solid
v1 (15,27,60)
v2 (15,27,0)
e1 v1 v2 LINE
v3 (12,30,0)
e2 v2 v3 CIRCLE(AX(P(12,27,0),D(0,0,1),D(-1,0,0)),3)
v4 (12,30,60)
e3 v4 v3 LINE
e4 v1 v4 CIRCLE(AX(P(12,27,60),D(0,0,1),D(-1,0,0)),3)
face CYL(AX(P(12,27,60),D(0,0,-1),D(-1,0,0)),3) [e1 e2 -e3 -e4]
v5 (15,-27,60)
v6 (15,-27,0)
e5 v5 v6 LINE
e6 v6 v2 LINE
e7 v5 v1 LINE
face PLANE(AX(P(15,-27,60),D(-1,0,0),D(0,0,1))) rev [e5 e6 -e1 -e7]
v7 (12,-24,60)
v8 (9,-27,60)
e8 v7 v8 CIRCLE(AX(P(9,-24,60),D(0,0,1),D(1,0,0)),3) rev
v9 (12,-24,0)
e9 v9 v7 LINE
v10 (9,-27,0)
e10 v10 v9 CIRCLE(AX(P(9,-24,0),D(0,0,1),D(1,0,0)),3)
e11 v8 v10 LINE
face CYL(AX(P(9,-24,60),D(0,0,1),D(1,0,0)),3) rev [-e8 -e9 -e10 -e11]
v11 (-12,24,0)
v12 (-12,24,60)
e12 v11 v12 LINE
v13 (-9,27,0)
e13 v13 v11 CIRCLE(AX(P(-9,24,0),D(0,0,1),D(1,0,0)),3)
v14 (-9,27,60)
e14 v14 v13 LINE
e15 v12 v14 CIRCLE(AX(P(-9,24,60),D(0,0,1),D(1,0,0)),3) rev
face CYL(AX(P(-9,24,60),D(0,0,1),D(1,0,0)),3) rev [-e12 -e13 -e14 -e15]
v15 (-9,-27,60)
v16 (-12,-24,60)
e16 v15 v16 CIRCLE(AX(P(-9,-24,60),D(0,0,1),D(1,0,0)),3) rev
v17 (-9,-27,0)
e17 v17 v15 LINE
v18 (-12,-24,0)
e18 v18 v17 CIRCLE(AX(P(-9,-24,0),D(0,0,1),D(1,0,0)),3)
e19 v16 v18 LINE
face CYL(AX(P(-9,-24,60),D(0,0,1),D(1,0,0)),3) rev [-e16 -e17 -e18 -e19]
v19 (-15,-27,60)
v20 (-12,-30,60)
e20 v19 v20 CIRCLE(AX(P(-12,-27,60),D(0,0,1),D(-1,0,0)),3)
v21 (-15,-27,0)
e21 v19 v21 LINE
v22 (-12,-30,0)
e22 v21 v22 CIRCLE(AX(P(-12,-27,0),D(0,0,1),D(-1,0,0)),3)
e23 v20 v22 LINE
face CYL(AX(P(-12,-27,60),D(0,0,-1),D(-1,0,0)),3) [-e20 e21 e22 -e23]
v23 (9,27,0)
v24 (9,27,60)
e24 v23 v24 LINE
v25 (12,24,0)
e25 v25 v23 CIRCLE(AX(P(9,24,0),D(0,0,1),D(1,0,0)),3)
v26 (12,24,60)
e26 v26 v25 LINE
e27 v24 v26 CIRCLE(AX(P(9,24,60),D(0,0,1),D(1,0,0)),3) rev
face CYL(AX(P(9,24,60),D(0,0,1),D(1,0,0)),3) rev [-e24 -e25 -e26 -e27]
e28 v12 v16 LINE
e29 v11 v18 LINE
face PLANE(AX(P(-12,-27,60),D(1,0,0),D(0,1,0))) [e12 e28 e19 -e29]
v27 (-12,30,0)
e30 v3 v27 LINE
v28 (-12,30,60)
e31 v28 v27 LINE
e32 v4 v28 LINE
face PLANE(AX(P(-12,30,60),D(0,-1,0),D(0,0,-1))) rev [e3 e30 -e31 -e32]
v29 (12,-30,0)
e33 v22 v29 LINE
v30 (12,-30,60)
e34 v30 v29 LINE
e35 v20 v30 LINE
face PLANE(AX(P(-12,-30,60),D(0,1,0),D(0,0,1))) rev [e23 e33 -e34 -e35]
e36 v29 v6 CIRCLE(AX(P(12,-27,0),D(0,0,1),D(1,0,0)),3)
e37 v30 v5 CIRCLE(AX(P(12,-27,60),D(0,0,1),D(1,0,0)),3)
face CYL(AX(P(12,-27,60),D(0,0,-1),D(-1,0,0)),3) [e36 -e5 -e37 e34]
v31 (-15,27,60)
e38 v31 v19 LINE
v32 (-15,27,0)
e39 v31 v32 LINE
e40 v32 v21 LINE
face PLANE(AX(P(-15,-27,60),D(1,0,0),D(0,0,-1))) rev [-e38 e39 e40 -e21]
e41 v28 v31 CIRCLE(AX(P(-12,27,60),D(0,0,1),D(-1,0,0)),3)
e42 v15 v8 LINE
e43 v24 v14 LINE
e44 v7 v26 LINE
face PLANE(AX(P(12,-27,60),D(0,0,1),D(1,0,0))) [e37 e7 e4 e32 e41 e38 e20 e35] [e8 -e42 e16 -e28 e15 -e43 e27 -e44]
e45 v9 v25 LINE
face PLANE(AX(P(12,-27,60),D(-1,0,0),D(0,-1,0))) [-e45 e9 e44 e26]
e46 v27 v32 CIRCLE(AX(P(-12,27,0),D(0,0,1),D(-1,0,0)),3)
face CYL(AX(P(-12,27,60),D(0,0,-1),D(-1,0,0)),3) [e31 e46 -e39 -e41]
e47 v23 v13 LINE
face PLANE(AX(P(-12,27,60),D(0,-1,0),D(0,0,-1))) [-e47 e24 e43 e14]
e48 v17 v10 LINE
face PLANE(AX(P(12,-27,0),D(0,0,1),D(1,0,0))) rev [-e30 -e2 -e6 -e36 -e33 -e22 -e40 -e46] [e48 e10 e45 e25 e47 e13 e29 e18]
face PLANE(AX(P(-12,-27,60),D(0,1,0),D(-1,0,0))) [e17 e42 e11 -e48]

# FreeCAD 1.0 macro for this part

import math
import FreeCAD as App
import Part
import Sketcher

V = App.Vector
Q = App.Units.Quantity


def edges_at(feature, points):
    """Names of the edges that pass closest to the given points."""
    edges = feature.Shape.Edges
    near = lambda p: min(range(len(edges)), key=lambda i: edges[i].distToShape(Part.Vertex(*p))[0])
    return sorted({f"Edge{near(p) + 1}" for p in points})


def add_polygon(sketch, points):
    """Adds a closed chain of lines whose ends are joined by coincident constraints."""
    first, n = sketch.GeometryCount, len(points)
    for a, b in zip(points, points[1:] + points[:1]):
        sketch.addGeometry(Part.LineSegment(App.Vector(*a, 0), App.Vector(*b, 0)), False)
    for i in range(n):
        sketch.addConstraint(Sketcher.Constraint("Coincident", first + i, 2, first + (i + 1) % n, 1))

doc = App.newDocument("Part")
params = doc.addObject("Spreadsheet::Sheet", "Params")
for row, (alias, value) in enumerate([
    ("sketch1_radius", "3 mm"),
    ("sketch1_width", "24 mm"),
    ("sketch1_height", "54 mm"),
    ("pad1_length", "60 mm"),
    ("fillet_radius", "3 mm"),
], start=1):
    params.set(f"A{row}", alias)
    params.set(f"B{row}", "=" + value)
    params.setAlias(f"B{row}", alias)

body = doc.addObject("PartDesign::Body", "Body")

# Sketch on XY plane
sketch1 = doc.addObject("Sketcher::SketchObject", "Sketch")
body.addObject(sketch1)
sketch1.AttachmentSupport = (doc.XY_Plane, [""])
sketch1.MapMode = "FlatFace"
sketch1.addGeometry(Part.LineSegment(V(-12, -30, 0), V(12, -30, 0)), False)  # 0
sketch1.addGeometry(Part.ArcOfCircle(Part.Circle(V(12, -27, 0), V(0, 0, 1), 3), math.radians(-90), math.radians(0)), False)  # 1
sketch1.addGeometry(Part.LineSegment(V(15, -27, 0), V(15, 27, 0)), False)  # 2
sketch1.addGeometry(Part.ArcOfCircle(Part.Circle(V(12, 27, 0), V(0, 0, 1), 3), math.radians(0), math.radians(90)), False)  # 3
sketch1.addGeometry(Part.LineSegment(V(12, 30, 0), V(-12, 30, 0)), False)  # 4
sketch1.addGeometry(Part.ArcOfCircle(Part.Circle(V(-12, 27, 0), V(0, 0, 1), 3), math.radians(90), math.radians(180)), False)  # 5
sketch1.addGeometry(Part.LineSegment(V(-15, 27, 0), V(-15, -27, 0)), False)  # 6
sketch1.addGeometry(Part.ArcOfCircle(Part.Circle(V(-12, -27, 0), V(0, 0, 1), 3), math.radians(180), math.radians(270)), False)  # 7
add_polygon(sketch1, [(12, -27), (-12, -27), (-12, 27), (12, 27)])  # lines 8-11
sketch1.addConstraint(Sketcher.Constraint("Tangent", 0, 2, 1, 1))
sketch1.addConstraint(Sketcher.Constraint("Tangent", 1, 2, 2, 1))
sketch1.addConstraint(Sketcher.Constraint("Tangent", 2, 2, 3, 1))
sketch1.addConstraint(Sketcher.Constraint("Tangent", 3, 2, 4, 1))
sketch1.addConstraint(Sketcher.Constraint("Tangent", 4, 2, 5, 1))
sketch1.addConstraint(Sketcher.Constraint("Tangent", 5, 2, 6, 1))
sketch1.addConstraint(Sketcher.Constraint("Tangent", 6, 2, 7, 1))
sketch1.addConstraint(Sketcher.Constraint("Tangent", 7, 2, 0, 1))
sketch1.addConstraint(Sketcher.Constraint("Horizontal", 0))
sketch1.addConstraint(Sketcher.Constraint("Vertical", 2))
sketch1.addConstraint(Sketcher.Constraint("Horizontal", 4))
sketch1.addConstraint(Sketcher.Constraint("Vertical", 6))
sketch1.addConstraint(Sketcher.Constraint("Horizontal", 8))
sketch1.addConstraint(Sketcher.Constraint("Vertical", 9))
sketch1.addConstraint(Sketcher.Constraint("Horizontal", 10))
sketch1.addConstraint(Sketcher.Constraint("Vertical", 11))
sketch1.addConstraint(Sketcher.Constraint("Coincident", 8, 2, 7, 3))
sketch1.addConstraint(Sketcher.Constraint("Coincident", 9, 2, 5, 3))
sketch1.addConstraint(Sketcher.Constraint("Coincident", 10, 2, 3, 3))
sketch1.addConstraint(Sketcher.Constraint("Equal", 1, 3))
sketch1.addConstraint(Sketcher.Constraint("Symmetric", 1, 3, 5, 3, -1, 1))
sketch1.addConstraint(Sketcher.Constraint("Radius", 1, Q("3 mm")))
sketch1.addConstraint(Sketcher.Constraint("DistanceX", 0, 1, 0, 2, Q("24 mm")))
sketch1.addConstraint(Sketcher.Constraint("DistanceY", 2, 1, 2, 2, Q("54 mm")))
sketch1.setExpression("Constraints[25]", "Params.sketch1_radius")
sketch1.setExpression("Constraints[26]", "Params.sketch1_width")
sketch1.setExpression("Constraints[27]", "Params.sketch1_height")
pad1 = doc.addObject("PartDesign::Pad", "Pad")
body.addObject(pad1)
pad1.Profile = sketch1
pad1.setExpression("Length", "Params.pad1_length")
doc.recompute()

fillet = doc.addObject("PartDesign::Fillet", "Fillet")
body.addObject(fillet)
fillet.Base = (pad1, edges_at(pad1, [
    (-12, 27, 30),
    (-12, -27, 30),
    (12, -27, 30),
    (12, 27, 30),
]))
fillet.setExpression("Radius", "Params.fillet_radius")

doc.recompute()
